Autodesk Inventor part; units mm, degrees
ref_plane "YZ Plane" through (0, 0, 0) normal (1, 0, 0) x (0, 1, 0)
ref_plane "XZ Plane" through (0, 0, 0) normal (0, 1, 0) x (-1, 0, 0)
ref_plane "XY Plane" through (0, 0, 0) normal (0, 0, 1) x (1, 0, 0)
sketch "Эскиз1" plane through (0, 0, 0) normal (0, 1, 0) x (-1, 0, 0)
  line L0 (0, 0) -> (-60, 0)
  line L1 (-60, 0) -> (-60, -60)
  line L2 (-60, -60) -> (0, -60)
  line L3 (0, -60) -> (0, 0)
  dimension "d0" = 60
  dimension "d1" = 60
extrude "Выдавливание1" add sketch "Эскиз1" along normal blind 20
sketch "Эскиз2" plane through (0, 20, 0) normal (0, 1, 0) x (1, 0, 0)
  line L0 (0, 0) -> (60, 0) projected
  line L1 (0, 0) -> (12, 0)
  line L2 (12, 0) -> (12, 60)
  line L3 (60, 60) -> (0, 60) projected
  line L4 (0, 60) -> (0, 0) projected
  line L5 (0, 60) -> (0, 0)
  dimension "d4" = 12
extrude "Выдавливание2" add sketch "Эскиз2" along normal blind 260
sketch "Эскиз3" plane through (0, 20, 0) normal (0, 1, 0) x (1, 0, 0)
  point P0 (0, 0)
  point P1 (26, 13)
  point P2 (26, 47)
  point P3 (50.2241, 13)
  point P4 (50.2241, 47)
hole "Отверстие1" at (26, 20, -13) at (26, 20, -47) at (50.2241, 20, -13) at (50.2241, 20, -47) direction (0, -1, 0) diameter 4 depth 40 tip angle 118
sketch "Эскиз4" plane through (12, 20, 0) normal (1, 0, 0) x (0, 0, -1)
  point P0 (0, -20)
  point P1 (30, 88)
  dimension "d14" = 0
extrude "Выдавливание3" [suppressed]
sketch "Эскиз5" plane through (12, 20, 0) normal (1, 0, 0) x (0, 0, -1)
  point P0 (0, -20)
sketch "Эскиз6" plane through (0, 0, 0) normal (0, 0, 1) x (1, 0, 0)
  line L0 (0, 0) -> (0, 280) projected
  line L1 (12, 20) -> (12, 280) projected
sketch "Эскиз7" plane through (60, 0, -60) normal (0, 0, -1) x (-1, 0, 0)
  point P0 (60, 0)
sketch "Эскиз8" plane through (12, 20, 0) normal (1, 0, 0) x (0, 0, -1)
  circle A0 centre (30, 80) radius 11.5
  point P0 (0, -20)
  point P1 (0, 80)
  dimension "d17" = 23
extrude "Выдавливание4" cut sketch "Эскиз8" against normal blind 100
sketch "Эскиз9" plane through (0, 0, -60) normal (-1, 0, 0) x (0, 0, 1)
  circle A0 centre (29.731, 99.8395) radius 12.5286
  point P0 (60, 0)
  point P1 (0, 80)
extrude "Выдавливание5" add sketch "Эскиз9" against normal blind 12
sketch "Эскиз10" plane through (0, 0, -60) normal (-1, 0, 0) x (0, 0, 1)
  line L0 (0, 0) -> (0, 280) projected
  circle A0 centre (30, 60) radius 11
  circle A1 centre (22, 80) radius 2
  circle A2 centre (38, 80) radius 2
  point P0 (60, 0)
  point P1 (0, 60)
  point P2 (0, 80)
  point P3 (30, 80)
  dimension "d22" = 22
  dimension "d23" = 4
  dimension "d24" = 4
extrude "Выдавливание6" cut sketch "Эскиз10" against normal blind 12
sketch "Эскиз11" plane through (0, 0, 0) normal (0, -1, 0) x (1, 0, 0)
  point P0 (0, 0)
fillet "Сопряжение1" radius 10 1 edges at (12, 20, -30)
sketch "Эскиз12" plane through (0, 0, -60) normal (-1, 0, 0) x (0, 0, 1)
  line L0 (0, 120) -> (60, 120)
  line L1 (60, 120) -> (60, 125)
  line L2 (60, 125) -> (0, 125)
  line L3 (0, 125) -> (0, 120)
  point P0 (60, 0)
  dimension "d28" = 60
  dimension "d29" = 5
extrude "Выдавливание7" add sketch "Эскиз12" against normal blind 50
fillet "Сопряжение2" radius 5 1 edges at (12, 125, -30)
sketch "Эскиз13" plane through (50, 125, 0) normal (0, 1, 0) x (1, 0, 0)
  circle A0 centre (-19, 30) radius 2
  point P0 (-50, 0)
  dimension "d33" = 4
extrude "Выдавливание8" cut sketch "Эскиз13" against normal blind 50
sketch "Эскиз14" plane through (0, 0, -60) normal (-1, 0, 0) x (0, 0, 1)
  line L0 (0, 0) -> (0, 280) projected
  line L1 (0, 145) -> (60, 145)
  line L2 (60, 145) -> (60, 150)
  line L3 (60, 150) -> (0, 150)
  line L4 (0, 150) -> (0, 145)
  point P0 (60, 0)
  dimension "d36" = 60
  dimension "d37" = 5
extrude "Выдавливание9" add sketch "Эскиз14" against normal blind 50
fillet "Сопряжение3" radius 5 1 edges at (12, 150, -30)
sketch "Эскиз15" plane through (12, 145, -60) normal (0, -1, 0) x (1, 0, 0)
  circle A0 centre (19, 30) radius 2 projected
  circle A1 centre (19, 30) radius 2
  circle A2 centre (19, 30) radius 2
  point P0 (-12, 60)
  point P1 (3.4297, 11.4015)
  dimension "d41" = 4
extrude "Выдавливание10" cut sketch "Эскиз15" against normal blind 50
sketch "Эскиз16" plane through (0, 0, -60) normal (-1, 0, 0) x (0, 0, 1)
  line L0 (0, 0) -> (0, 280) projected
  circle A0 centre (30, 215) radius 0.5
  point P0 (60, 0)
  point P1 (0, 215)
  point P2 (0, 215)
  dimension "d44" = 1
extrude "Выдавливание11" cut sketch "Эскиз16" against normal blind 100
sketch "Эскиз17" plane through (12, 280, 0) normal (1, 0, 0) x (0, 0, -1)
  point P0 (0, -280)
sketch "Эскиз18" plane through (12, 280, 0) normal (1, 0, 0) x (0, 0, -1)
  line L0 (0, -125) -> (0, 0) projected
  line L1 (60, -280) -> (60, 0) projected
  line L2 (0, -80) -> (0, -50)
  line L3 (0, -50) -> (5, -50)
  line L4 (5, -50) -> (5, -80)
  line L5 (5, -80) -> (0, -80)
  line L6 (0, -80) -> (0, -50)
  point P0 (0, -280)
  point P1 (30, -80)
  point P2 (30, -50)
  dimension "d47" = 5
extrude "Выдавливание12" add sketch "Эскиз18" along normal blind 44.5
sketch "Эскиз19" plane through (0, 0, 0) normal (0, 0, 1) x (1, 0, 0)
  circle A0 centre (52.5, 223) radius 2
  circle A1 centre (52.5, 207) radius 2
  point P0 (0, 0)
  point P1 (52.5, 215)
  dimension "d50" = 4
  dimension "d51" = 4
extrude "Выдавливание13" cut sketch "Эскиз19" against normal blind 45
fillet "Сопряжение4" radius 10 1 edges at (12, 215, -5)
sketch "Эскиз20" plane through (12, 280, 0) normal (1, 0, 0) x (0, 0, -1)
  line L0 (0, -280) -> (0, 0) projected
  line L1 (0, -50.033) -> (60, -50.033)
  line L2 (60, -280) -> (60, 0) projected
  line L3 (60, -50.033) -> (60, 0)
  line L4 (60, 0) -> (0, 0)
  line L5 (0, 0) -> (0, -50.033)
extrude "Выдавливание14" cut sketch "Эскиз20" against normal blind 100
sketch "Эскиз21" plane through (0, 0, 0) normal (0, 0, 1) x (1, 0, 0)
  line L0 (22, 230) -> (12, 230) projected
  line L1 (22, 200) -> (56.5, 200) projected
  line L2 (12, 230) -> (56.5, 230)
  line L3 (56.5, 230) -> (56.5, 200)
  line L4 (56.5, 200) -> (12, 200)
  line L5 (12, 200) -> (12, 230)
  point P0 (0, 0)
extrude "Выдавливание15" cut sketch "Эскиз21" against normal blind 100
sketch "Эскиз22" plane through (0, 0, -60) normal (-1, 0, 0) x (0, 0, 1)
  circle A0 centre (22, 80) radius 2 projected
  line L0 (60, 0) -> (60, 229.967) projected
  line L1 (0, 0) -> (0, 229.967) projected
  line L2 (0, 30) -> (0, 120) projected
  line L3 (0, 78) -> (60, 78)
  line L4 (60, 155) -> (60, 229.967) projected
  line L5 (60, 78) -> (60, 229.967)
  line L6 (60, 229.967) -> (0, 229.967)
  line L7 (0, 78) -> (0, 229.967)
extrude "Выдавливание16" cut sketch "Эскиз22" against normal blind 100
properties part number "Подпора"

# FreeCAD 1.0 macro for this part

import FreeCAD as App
import Part
import Sketcher

V = App.Vector
Q = App.Units.Quantity


def edges_at(feature, points):
    """Names of the edges that pass closest to the given points."""
    edges = feature.Shape.Edges
    near = lambda p: min(range(len(edges)), key=lambda i: edges[i].distToShape(Part.Vertex(*p))[0])
    return sorted({f"Edge{near(p) + 1}" for p in points})

doc = App.newDocument("Part")
body = doc.addObject("PartDesign::Body", "Body")

# Sketch on XZ plane
sketch1 = body.newObject("Sketcher::SketchObject", "Sketch")
sketch1.AttachmentSupport = (doc.getObject("XZ_Plane"), [""])
sketch1.MapMode = "FlatFace"
sketch1.addGeometry([
    Part.LineSegment(V(0, -60, 0), V(0, 0, 0)),
    Part.LineSegment(V(0, 0, 0), V(60, 0, 0)),
    Part.LineSegment(V(60, 0, 0), V(60, -60, 0)),
    Part.LineSegment(V(60, -60, 0), V(0, -60, 0)),
], False)
sketch1.addConstraint([
    Sketcher.Constraint("Coincident", 0, 2, 1, 1),
    Sketcher.Constraint("Coincident", 1, 2, 2, 1),
    Sketcher.Constraint("Coincident", 2, 2, 3, 1),
    Sketcher.Constraint("Coincident", 3, 2, 0, 1),
    Sketcher.Constraint("Vertical", 0),
    Sketcher.Constraint("Horizontal", 1),
    Sketcher.Constraint("Vertical", 2),
    Sketcher.Constraint("Horizontal", 3),
    Sketcher.Constraint("Coincident", 0, 2, -1, 1),
    Sketcher.Constraint("Equal", 3, 0),
    Sketcher.Constraint("DistanceX", 1, 1, 1, 2, Q("60 mm")),
])
pad1 = body.newObject("PartDesign::Pad", "Pad")
pad1.Profile = sketch1
pad1.Length = 20
pad1.Reversed = True

# Sketch on XZ plane
sketch2 = body.newObject("Sketcher::SketchObject", "Sketch001")
sketch2.AttachmentSupport = (doc.getObject("XZ_Plane"), [""])
sketch2.MapMode = "FlatFace"
sketch2.AttachmentOffset = App.Placement(V(0, 0, -20), App.Rotation())
sketch2.addGeometry([
    Part.LineSegment(V(0, -60, 0), V(0, 0, 0)),
    Part.LineSegment(V(0, 0, 0), V(12, 0, 0)),
    Part.LineSegment(V(12, 0, 0), V(12, -60, 0)),
    Part.LineSegment(V(12, -60, 0), V(0, -60, 0)),
], False)
sketch2.addConstraint([
    Sketcher.Constraint("Coincident", 0, 2, 1, 1),
    Sketcher.Constraint("Coincident", 1, 2, 2, 1),
    Sketcher.Constraint("Coincident", 2, 2, 3, 1),
    Sketcher.Constraint("Coincident", 3, 2, 0, 1),
    Sketcher.Constraint("Vertical", 0),
    Sketcher.Constraint("Horizontal", 1),
    Sketcher.Constraint("Vertical", 2),
    Sketcher.Constraint("Horizontal", 3),
    Sketcher.Constraint("Coincident", 0, 2, -1, 1),
    Sketcher.Constraint("DistanceX", 1, 1, 1, 2, Q("12 mm")),
    Sketcher.Constraint("DistanceY", 0, 1, 0, 2, Q("60 mm")),
])
pad2 = body.newObject("PartDesign::Pad", "Pad001")
pad2.Profile = sketch2
pad2.Length = 260
pad2.Reversed = True

# Sketch on XZ plane
sketch3 = body.newObject("Sketcher::SketchObject", "Sketch002")
sketch3.AttachmentSupport = (doc.getObject("XZ_Plane"), [""])
sketch3.MapMode = "FlatFace"
sketch3.AttachmentOffset = App.Placement(V(0, 0, -20), App.Rotation())
sketch3.addGeometry([
    Part.Circle(V(26, -13, 0), V(0, 0, 1), 2),
    Part.Circle(V(26, -47, 0), V(0, 0, 1), 2),
    Part.Circle(V(50.2241, -13, 0), V(0, 0, 1), 2),
    Part.Circle(V(50.2241, -47, 0), V(0, 0, 1), 2),
], False)
sketch3.addConstraint([
    Sketcher.Constraint("Equal", 0, 1),
    Sketcher.Constraint("Equal", 1, 2),
    Sketcher.Constraint("Equal", 2, 3),
    Sketcher.Constraint("Horizontal", 0, 3, 2, 3),
    Sketcher.Constraint("Horizontal", 1, 3, 3, 3),
    Sketcher.Constraint("Vertical", 0, 3, 1, 3),
    Sketcher.Constraint("Vertical", 2, 3, 3, 3),
    Sketcher.Constraint("Diameter", 0, Q("4 mm")),
    Sketcher.Constraint("DistanceX", -1, 1, 0, 3, Q("26 mm")),
    Sketcher.Constraint("DistanceY", 0, 3, -1, 1, Q("13 mm")),
    Sketcher.Constraint("DistanceY", 1, 3, -1, 1, Q("47 mm")),
    Sketcher.Constraint("DistanceX", -1, 1, 2, 3, Q("50.224 mm")),
])
doc.recompute()
hole = body.newObject("PartDesign::Hole", "Hole")
hole.Profile = sketch3
hole.ThreadType = "None"
hole.Diameter = 4
hole.DepthType = "Dimension"
hole.Depth = 40
hole.DrillPoint = "Angled"
hole.DrillPointAngle = 118
hole.Reversed = True

# Sketch on YZ plane
sketch4 = body.newObject("Sketcher::SketchObject", "Sketch003")
sketch4.AttachmentSupport = (doc.getObject("YZ_Plane"), [""])
sketch4.MapMode = "FlatFace"
sketch4.AttachmentOffset = App.Placement(V(0, 0, 12), App.Rotation())
sketch4.addGeometry(Part.Circle(V(100, -30, 0), V(0, 0, 1), 11.5), False)
sketch4.addConstraint([
    Sketcher.Constraint("Diameter", 0, Q("23 mm")),
    Sketcher.Constraint("DistanceX", -1, 1, 0, 3, Q("100 mm")),
    Sketcher.Constraint("DistanceY", 0, 3, -1, 1, Q("30 mm")),
])
pocket1 = body.newObject("PartDesign::Pocket", "Pocket")
pocket1.Profile = sketch4
pocket1.Length = 100

# Sketch on YZ plane
sketch5 = body.newObject("Sketcher::SketchObject", "Sketch004")
sketch5.AttachmentSupport = (doc.getObject("YZ_Plane"), [""])
sketch5.MapMode = "FlatFace"
sketch5.addGeometry(Part.Circle(V(99.8395, -30.269, 0), V(0, 0, 1), 12.5286), False)
sketch5.addConstraint([
    Sketcher.Constraint("Diameter", 0, Q("25.0572 mm")),
    Sketcher.Constraint("DistanceY", 0, 3, -1, 1, Q("30.269 mm")),
    Sketcher.Constraint("DistanceX", -1, 1, 0, 3, Q("99.8395 mm")),
])
pad3 = body.newObject("PartDesign::Pad", "Pad002")
pad3.Profile = sketch5
pad3.Length = 12

# Sketch on YZ plane
sketch6 = body.newObject("Sketcher::SketchObject", "Sketch005")
sketch6.AttachmentSupport = (doc.getObject("YZ_Plane"), [""])
sketch6.MapMode = "FlatFace"
sketch6.addGeometry([
    Part.Circle(V(60, -30, 0), V(0, 0, 1), 11),
    Part.Circle(V(80, -38, 0), V(0, 0, 1), 2),
    Part.Circle(V(80, -22, 0), V(0, 0, 1), 2),
], False)
sketch6.addConstraint([
    Sketcher.Constraint("Equal", 1, 2),
    Sketcher.Constraint("Vertical", 1, 3, 2, 3),
    Sketcher.Constraint("Diameter", 0, Q("22 mm")),
    Sketcher.Constraint("Diameter", 1, Q("4 mm")),
    Sketcher.Constraint("DistanceY", 2, 3, -1, 1, Q("22 mm")),
    Sketcher.Constraint("DistanceX", -1, 1, 0, 3, Q("60 mm")),
    Sketcher.Constraint("DistanceY", 0, 3, -1, 1, Q("30 mm")),
    Sketcher.Constraint("DistanceX", -1, 1, 1, 3, Q("80 mm")),
    Sketcher.Constraint("DistanceY", 1, 3, -1, 1, Q("38 mm")),
])
pocket2 = body.newObject("PartDesign::Pocket", "Pocket001")
pocket2.Profile = sketch6
pocket2.Length = 12
pocket2.Reversed = True
doc.recompute()

fillet = body.newObject("PartDesign::Fillet", "Fillet")
fillet.Base = (pocket2, edges_at(pocket2, [(12, 20, -30)]))
fillet.Radius = 10

# Sketch on YZ plane
sketch7 = body.newObject("Sketcher::SketchObject", "Sketch006")
sketch7.AttachmentSupport = (doc.getObject("YZ_Plane"), [""])
sketch7.MapMode = "FlatFace"
sketch7.addGeometry([
    Part.LineSegment(V(125, -60, 0), V(120, -60, 0)),
    Part.LineSegment(V(120, -60, 0), V(120, 0, 0)),
    Part.LineSegment(V(120, 0, 0), V(125, 0, 0)),
    Part.LineSegment(V(125, 0, 0), V(125, -60, 0)),
], False)
sketch7.addConstraint([
    Sketcher.Constraint("Coincident", 0, 2, 1, 1),
    Sketcher.Constraint("Coincident", 1, 2, 2, 1),
    Sketcher.Constraint("Coincident", 2, 2, 3, 1),
    Sketcher.Constraint("Coincident", 3, 2, 0, 1),
    Sketcher.Constraint("Horizontal", 0),
    Sketcher.Constraint("Vertical", 1),
    Sketcher.Constraint("Horizontal", 2),
    Sketcher.Constraint("Vertical", 3),
    Sketcher.Constraint("PointOnObject", 1, 2, -1),
    Sketcher.Constraint("DistanceX", 0, 2, 0, 1, Q("5 mm")),
    Sketcher.Constraint("DistanceY", 1, 1, 1, 2, Q("60 mm")),
    Sketcher.Constraint("DistanceX", -1, 1, 0, 2, Q("120 mm")),
])
pad4 = body.newObject("PartDesign::Pad", "Pad003")
pad4.Profile = sketch7
pad4.Length = 50
doc.recompute()

fillet2 = body.newObject("PartDesign::Fillet", "Fillet001")
fillet2.Base = (pad4, edges_at(pad4, [(12, 125, -30)]))
fillet2.Radius = 5

# Sketch on XZ plane
sketch8 = body.newObject("Sketcher::SketchObject", "Sketch007")
sketch8.AttachmentSupport = (doc.getObject("XZ_Plane"), [""])
sketch8.MapMode = "FlatFace"
sketch8.AttachmentOffset = App.Placement(V(0, 0, -125), App.Rotation())
sketch8.addGeometry(Part.Circle(V(31, -30, 0), V(0, 0, 1), 2), False)
sketch8.addConstraint([
    Sketcher.Constraint("Diameter", 0, Q("4 mm")),
    Sketcher.Constraint("DistanceX", -1, 1, 0, 3, Q("31 mm")),
    Sketcher.Constraint("DistanceY", 0, 3, -1, 1, Q("30 mm")),
])
pocket3 = body.newObject("PartDesign::Pocket", "Pocket002")
pocket3.Profile = sketch8
pocket3.Length = 50
pocket3.Reversed = True

# Sketch on YZ plane
sketch9 = body.newObject("Sketcher::SketchObject", "Sketch008")
sketch9.AttachmentSupport = (doc.getObject("YZ_Plane"), [""])
sketch9.MapMode = "FlatFace"
sketch9.addGeometry([
    Part.LineSegment(V(150, -60, 0), V(145, -60, 0)),
    Part.LineSegment(V(145, -60, 0), V(145, 0, 0)),
    Part.LineSegment(V(145, 0, 0), V(150, 0, 0)),
    Part.LineSegment(V(150, 0, 0), V(150, -60, 0)),
], False)
sketch9.addConstraint([
    Sketcher.Constraint("Coincident", 0, 2, 1, 1),
    Sketcher.Constraint("Coincident", 1, 2, 2, 1),
    Sketcher.Constraint("Coincident", 2, 2, 3, 1),
    Sketcher.Constraint("Coincident", 3, 2, 0, 1),
    Sketcher.Constraint("Horizontal", 0),
    Sketcher.Constraint("Vertical", 1),
    Sketcher.Constraint("Horizontal", 2),
    Sketcher.Constraint("Vertical", 3),
    Sketcher.Constraint("PointOnObject", 1, 2, -1),
    Sketcher.Constraint("DistanceX", 0, 2, 0, 1, Q("5 mm")),
    Sketcher.Constraint("DistanceY", 1, 1, 1, 2, Q("60 mm")),
    Sketcher.Constraint("DistanceX", -1, 1, 0, 2, Q("145 mm")),
])
pad5 = body.newObject("PartDesign::Pad", "Pad004")
pad5.Profile = sketch9
pad5.Length = 50
doc.recompute()

fillet3 = body.newObject("PartDesign::Fillet", "Fillet002")
fillet3.Base = (pad5, edges_at(pad5, [(12, 150, -30)]))
fillet3.Radius = 5

# Sketch on XZ plane
sketch10 = body.newObject("Sketcher::SketchObject", "Sketch009")
sketch10.AttachmentSupport = (doc.getObject("XZ_Plane"), [""])
sketch10.MapMode = "FlatFace"
sketch10.AttachmentOffset = App.Placement(V(0, 0, -145), App.Rotation())
sketch10.addGeometry(Part.Circle(V(31, -30, 0), V(0, 0, 1), 2), False)
sketch10.addConstraint([
    Sketcher.Constraint("Diameter", 0, Q("4 mm")),
    Sketcher.Constraint("DistanceX", -1, 1, 0, 3, Q("31 mm")),
    Sketcher.Constraint("DistanceY", 0, 3, -1, 1, Q("30 mm")),
])
pocket4 = body.newObject("PartDesign::Pocket", "Pocket003")
pocket4.Profile = sketch10
pocket4.Length = 50

# Sketch on YZ plane
sketch11 = body.newObject("Sketcher::SketchObject", "Sketch010")
sketch11.AttachmentSupport = (doc.getObject("YZ_Plane"), [""])
sketch11.MapMode = "FlatFace"
sketch11.addGeometry(Part.Circle(V(215, -30, 0), V(0, 0, 1), 0.5), False)
sketch11.addConstraint([
    Sketcher.Constraint("Diameter", 0, Q("1 mm")),
    Sketcher.Constraint("DistanceX", -1, 1, 0, 3, Q("215 mm")),
    Sketcher.Constraint("DistanceY", 0, 3, -1, 1, Q("30 mm")),
])
pocket5 = body.newObject("PartDesign::Pocket", "Pocket004")
pocket5.Profile = sketch11
pocket5.Length = 100
pocket5.Reversed = True

# Sketch on YZ plane
sketch12 = body.newObject("Sketcher::SketchObject", "Sketch011")
sketch12.AttachmentSupport = (doc.getObject("YZ_Plane"), [""])
sketch12.MapMode = "FlatFace"
sketch12.AttachmentOffset = App.Placement(V(0, 0, 12), App.Rotation())
sketch12.addGeometry([
    Part.LineSegment(V(230, 0, 0), V(200, 0, 0)),
    Part.LineSegment(V(200, 0, 0), V(200, -5, 0)),
    Part.LineSegment(V(200, -5, 0), V(230, -5, 0)),
    Part.LineSegment(V(230, -5, 0), V(230, 0, 0)),
], False)
sketch12.addConstraint([
    Sketcher.Constraint("Coincident", 0, 2, 1, 1),
    Sketcher.Constraint("Coincident", 1, 2, 2, 1),
    Sketcher.Constraint("Coincident", 2, 2, 3, 1),
    Sketcher.Constraint("Coincident", 3, 2, 0, 1),
    Sketcher.Constraint("Horizontal", 0),
    Sketcher.Constraint("Vertical", 1),
    Sketcher.Constraint("Horizontal", 2),
    Sketcher.Constraint("Vertical", 3),
    Sketcher.Constraint("PointOnObject", 0, 2, -1),
    Sketcher.Constraint("DistanceY", 1, 2, 1, 1, Q("5 mm")),
    Sketcher.Constraint("DistanceX", 0, 2, 0, 1, Q("30 mm")),
    Sketcher.Constraint("DistanceX", -1, 1, 0, 2, Q("200 mm")),
])
pad6 = body.newObject("PartDesign::Pad", "Pad005")
pad6.Profile = sketch12
pad6.Length = 44.5

# Sketch on XY plane
sketch13 = body.newObject("Sketcher::SketchObject", "Sketch012")
sketch13.AttachmentSupport = (doc.getObject("XY_Plane"), [""])
sketch13.MapMode = "FlatFace"
sketch13.addGeometry([
    Part.Circle(V(52.5, 223, 0), V(0, 0, 1), 2),
    Part.Circle(V(52.5, 207, 0), V(0, 0, 1), 2),
], False)
sketch13.addConstraint([
    Sketcher.Constraint("Equal", 0, 1),
    Sketcher.Constraint("Vertical", 0, 3, 1, 3),
    Sketcher.Constraint("Diameter", 0, Q("4 mm")),
    Sketcher.Constraint("DistanceY", -1, 1, 0, 3, Q("223 mm")),
    Sketcher.Constraint("DistanceY", -1, 1, 1, 3, Q("207 mm")),
    Sketcher.Constraint("DistanceX", -1, 1, 0, 3, Q("52.5 mm")),
])
pocket6 = body.newObject("PartDesign::Pocket", "Pocket005")
pocket6.Profile = sketch13
pocket6.Length = 45
doc.recompute()

fillet4 = body.newObject("PartDesign::Fillet", "Fillet003")
fillet4.Base = (pocket6, edges_at(pocket6, [(12, 215, -5)]))
fillet4.Radius = 10

# Sketch on YZ plane
sketch14 = body.newObject("Sketcher::SketchObject", "Sketch013")
sketch14.AttachmentSupport = (doc.getObject("YZ_Plane"), [""])
sketch14.MapMode = "FlatFace"
sketch14.AttachmentOffset = App.Placement(V(0, 0, 12), App.Rotation())
sketch14.addGeometry([
    Part.LineSegment(V(280, 0, 0), V(229.967, 0, 0)),
    Part.LineSegment(V(229.967, 0, 0), V(229.967, -60, 0)),
    Part.LineSegment(V(229.967, -60, 0), V(280, -60, 0)),
    Part.LineSegment(V(280, -60, 0), V(280, 0, 0)),
], False)
sketch14.addConstraint([
    Sketcher.Constraint("Coincident", 0, 2, 1, 1),
    Sketcher.Constraint("Coincident", 1, 2, 2, 1),
    Sketcher.Constraint("Coincident", 2, 2, 3, 1),
    Sketcher.Constraint("Coincident", 3, 2, 0, 1),
    Sketcher.Constraint("Horizontal", 0),
    Sketcher.Constraint("Vertical", 1),
    Sketcher.Constraint("Horizontal", 2),
    Sketcher.Constraint("Vertical", 3),
    Sketcher.Constraint("PointOnObject", 0, 2, -1),
    Sketcher.Constraint("DistanceY", 1, 2, 1, 1, Q("60 mm")),
    Sketcher.Constraint("DistanceX", -1, 1, 2, 2, Q("280 mm")),
    Sketcher.Constraint("DistanceX", 0, 2, 0, 1, Q("50.033 mm")),
])
pocket7 = body.newObject("PartDesign::Pocket", "Pocket006")
pocket7.Profile = sketch14
pocket7.Length = 100

# Sketch on XY plane
sketch15 = body.newObject("Sketcher::SketchObject", "Sketch014")
sketch15.AttachmentSupport = (doc.getObject("XY_Plane"), [""])
sketch15.MapMode = "FlatFace"
sketch15.addGeometry([
    Part.LineSegment(V(56.5, 230, 0), V(12, 230, 0)),
    Part.LineSegment(V(12, 230, 0), V(12, 200, 0)),
    Part.LineSegment(V(12, 200, 0), V(56.5, 200, 0)),
    Part.LineSegment(V(56.5, 200, 0), V(56.5, 230, 0)),
], False)
sketch15.addConstraint([
    Sketcher.Constraint("Coincident", 0, 2, 1, 1),
    Sketcher.Constraint("Coincident", 1, 2, 2, 1),
    Sketcher.Constraint("Coincident", 2, 2, 3, 1),
    Sketcher.Constraint("Coincident", 3, 2, 0, 1),
    Sketcher.Constraint("Horizontal", 0),
    Sketcher.Constraint("Vertical", 1),
    Sketcher.Constraint("Horizontal", 2),
    Sketcher.Constraint("Vertical", 3),
    Sketcher.Constraint("DistanceY", 1, 2, 1, 1, Q("30 mm")),
    Sketcher.Constraint("DistanceX", 0, 2, 0, 1, Q("44.5 mm")),
    Sketcher.Constraint("DistanceX", -1, 1, 0, 2, Q("12 mm")),
    Sketcher.Constraint("DistanceY", -1, 1, 0, 2, Q("230 mm")),
])
pocket8 = body.newObject("PartDesign::Pocket", "Pocket007")
pocket8.Profile = sketch15
pocket8.Length = 100

# Sketch on YZ plane
sketch16 = body.newObject("Sketcher::SketchObject", "Sketch015")
sketch16.AttachmentSupport = (doc.getObject("YZ_Plane"), [""])
sketch16.MapMode = "FlatFace"
sketch16.addGeometry([
    Part.LineSegment(V(78, -60, 0), V(78, -38, 0)),  # 0
    Part.LineSegment(V(78, -38, 0), V(78, 0, 0)),  # 1
    Part.LineSegment(V(78, 0, 0), V(229.967, 0, 0)),  # 2
    Part.LineSegment(V(229.967, 0, 0), V(229.967, -60, 0)),  # 3
    Part.LineSegment(V(229.967, -60, 0), V(78, -60, 0)),  # 4
    Part.Circle(V(80, -38, 0), V(0, 0, 1), 2),  # 5
], False)
sketch16.addConstraint([
    Sketcher.Constraint("Coincident", 0, 2, 1, 1),
    Sketcher.Constraint("Coincident", 1, 2, 2, 1),
    Sketcher.Constraint("Coincident", 2, 2, 3, 1),
    Sketcher.Constraint("Coincident", 3, 2, 4, 1),
    Sketcher.Constraint("Coincident", 4, 2, 0, 1),
    Sketcher.Constraint("Vertical", 0),
    Sketcher.Constraint("Vertical", 1),
    Sketcher.Constraint("Horizontal", 2),
    Sketcher.Constraint("Vertical", 3),
    Sketcher.Constraint("Horizontal", 4),
    Sketcher.Constraint("PointOnObject", 1, 2, -1),
    Sketcher.Constraint("Horizontal", 5, 3, 0, 2),
    Sketcher.Constraint("Diameter", 5, Q("4 mm")),
    Sketcher.Constraint("DistanceY", 0, 1, 0, 2, Q("22 mm")),
    Sketcher.Constraint("DistanceY", 1, 1, 1, 2, Q("38 mm")),
    Sketcher.Constraint("DistanceX", -1, 1, 5, 3, Q("80 mm")),
    Sketcher.Constraint("DistanceX", -1, 1, 0, 2, Q("78 mm")),
    Sketcher.Constraint("DistanceX", 2, 1, 2, 2, Q("151.967 mm")),
])
pocket9 = body.newObject("PartDesign::Pocket", "Pocket008")
pocket9.Profile = sketch16
pocket9.Length = 100
pocket9.Reversed = True

doc.recompute()
